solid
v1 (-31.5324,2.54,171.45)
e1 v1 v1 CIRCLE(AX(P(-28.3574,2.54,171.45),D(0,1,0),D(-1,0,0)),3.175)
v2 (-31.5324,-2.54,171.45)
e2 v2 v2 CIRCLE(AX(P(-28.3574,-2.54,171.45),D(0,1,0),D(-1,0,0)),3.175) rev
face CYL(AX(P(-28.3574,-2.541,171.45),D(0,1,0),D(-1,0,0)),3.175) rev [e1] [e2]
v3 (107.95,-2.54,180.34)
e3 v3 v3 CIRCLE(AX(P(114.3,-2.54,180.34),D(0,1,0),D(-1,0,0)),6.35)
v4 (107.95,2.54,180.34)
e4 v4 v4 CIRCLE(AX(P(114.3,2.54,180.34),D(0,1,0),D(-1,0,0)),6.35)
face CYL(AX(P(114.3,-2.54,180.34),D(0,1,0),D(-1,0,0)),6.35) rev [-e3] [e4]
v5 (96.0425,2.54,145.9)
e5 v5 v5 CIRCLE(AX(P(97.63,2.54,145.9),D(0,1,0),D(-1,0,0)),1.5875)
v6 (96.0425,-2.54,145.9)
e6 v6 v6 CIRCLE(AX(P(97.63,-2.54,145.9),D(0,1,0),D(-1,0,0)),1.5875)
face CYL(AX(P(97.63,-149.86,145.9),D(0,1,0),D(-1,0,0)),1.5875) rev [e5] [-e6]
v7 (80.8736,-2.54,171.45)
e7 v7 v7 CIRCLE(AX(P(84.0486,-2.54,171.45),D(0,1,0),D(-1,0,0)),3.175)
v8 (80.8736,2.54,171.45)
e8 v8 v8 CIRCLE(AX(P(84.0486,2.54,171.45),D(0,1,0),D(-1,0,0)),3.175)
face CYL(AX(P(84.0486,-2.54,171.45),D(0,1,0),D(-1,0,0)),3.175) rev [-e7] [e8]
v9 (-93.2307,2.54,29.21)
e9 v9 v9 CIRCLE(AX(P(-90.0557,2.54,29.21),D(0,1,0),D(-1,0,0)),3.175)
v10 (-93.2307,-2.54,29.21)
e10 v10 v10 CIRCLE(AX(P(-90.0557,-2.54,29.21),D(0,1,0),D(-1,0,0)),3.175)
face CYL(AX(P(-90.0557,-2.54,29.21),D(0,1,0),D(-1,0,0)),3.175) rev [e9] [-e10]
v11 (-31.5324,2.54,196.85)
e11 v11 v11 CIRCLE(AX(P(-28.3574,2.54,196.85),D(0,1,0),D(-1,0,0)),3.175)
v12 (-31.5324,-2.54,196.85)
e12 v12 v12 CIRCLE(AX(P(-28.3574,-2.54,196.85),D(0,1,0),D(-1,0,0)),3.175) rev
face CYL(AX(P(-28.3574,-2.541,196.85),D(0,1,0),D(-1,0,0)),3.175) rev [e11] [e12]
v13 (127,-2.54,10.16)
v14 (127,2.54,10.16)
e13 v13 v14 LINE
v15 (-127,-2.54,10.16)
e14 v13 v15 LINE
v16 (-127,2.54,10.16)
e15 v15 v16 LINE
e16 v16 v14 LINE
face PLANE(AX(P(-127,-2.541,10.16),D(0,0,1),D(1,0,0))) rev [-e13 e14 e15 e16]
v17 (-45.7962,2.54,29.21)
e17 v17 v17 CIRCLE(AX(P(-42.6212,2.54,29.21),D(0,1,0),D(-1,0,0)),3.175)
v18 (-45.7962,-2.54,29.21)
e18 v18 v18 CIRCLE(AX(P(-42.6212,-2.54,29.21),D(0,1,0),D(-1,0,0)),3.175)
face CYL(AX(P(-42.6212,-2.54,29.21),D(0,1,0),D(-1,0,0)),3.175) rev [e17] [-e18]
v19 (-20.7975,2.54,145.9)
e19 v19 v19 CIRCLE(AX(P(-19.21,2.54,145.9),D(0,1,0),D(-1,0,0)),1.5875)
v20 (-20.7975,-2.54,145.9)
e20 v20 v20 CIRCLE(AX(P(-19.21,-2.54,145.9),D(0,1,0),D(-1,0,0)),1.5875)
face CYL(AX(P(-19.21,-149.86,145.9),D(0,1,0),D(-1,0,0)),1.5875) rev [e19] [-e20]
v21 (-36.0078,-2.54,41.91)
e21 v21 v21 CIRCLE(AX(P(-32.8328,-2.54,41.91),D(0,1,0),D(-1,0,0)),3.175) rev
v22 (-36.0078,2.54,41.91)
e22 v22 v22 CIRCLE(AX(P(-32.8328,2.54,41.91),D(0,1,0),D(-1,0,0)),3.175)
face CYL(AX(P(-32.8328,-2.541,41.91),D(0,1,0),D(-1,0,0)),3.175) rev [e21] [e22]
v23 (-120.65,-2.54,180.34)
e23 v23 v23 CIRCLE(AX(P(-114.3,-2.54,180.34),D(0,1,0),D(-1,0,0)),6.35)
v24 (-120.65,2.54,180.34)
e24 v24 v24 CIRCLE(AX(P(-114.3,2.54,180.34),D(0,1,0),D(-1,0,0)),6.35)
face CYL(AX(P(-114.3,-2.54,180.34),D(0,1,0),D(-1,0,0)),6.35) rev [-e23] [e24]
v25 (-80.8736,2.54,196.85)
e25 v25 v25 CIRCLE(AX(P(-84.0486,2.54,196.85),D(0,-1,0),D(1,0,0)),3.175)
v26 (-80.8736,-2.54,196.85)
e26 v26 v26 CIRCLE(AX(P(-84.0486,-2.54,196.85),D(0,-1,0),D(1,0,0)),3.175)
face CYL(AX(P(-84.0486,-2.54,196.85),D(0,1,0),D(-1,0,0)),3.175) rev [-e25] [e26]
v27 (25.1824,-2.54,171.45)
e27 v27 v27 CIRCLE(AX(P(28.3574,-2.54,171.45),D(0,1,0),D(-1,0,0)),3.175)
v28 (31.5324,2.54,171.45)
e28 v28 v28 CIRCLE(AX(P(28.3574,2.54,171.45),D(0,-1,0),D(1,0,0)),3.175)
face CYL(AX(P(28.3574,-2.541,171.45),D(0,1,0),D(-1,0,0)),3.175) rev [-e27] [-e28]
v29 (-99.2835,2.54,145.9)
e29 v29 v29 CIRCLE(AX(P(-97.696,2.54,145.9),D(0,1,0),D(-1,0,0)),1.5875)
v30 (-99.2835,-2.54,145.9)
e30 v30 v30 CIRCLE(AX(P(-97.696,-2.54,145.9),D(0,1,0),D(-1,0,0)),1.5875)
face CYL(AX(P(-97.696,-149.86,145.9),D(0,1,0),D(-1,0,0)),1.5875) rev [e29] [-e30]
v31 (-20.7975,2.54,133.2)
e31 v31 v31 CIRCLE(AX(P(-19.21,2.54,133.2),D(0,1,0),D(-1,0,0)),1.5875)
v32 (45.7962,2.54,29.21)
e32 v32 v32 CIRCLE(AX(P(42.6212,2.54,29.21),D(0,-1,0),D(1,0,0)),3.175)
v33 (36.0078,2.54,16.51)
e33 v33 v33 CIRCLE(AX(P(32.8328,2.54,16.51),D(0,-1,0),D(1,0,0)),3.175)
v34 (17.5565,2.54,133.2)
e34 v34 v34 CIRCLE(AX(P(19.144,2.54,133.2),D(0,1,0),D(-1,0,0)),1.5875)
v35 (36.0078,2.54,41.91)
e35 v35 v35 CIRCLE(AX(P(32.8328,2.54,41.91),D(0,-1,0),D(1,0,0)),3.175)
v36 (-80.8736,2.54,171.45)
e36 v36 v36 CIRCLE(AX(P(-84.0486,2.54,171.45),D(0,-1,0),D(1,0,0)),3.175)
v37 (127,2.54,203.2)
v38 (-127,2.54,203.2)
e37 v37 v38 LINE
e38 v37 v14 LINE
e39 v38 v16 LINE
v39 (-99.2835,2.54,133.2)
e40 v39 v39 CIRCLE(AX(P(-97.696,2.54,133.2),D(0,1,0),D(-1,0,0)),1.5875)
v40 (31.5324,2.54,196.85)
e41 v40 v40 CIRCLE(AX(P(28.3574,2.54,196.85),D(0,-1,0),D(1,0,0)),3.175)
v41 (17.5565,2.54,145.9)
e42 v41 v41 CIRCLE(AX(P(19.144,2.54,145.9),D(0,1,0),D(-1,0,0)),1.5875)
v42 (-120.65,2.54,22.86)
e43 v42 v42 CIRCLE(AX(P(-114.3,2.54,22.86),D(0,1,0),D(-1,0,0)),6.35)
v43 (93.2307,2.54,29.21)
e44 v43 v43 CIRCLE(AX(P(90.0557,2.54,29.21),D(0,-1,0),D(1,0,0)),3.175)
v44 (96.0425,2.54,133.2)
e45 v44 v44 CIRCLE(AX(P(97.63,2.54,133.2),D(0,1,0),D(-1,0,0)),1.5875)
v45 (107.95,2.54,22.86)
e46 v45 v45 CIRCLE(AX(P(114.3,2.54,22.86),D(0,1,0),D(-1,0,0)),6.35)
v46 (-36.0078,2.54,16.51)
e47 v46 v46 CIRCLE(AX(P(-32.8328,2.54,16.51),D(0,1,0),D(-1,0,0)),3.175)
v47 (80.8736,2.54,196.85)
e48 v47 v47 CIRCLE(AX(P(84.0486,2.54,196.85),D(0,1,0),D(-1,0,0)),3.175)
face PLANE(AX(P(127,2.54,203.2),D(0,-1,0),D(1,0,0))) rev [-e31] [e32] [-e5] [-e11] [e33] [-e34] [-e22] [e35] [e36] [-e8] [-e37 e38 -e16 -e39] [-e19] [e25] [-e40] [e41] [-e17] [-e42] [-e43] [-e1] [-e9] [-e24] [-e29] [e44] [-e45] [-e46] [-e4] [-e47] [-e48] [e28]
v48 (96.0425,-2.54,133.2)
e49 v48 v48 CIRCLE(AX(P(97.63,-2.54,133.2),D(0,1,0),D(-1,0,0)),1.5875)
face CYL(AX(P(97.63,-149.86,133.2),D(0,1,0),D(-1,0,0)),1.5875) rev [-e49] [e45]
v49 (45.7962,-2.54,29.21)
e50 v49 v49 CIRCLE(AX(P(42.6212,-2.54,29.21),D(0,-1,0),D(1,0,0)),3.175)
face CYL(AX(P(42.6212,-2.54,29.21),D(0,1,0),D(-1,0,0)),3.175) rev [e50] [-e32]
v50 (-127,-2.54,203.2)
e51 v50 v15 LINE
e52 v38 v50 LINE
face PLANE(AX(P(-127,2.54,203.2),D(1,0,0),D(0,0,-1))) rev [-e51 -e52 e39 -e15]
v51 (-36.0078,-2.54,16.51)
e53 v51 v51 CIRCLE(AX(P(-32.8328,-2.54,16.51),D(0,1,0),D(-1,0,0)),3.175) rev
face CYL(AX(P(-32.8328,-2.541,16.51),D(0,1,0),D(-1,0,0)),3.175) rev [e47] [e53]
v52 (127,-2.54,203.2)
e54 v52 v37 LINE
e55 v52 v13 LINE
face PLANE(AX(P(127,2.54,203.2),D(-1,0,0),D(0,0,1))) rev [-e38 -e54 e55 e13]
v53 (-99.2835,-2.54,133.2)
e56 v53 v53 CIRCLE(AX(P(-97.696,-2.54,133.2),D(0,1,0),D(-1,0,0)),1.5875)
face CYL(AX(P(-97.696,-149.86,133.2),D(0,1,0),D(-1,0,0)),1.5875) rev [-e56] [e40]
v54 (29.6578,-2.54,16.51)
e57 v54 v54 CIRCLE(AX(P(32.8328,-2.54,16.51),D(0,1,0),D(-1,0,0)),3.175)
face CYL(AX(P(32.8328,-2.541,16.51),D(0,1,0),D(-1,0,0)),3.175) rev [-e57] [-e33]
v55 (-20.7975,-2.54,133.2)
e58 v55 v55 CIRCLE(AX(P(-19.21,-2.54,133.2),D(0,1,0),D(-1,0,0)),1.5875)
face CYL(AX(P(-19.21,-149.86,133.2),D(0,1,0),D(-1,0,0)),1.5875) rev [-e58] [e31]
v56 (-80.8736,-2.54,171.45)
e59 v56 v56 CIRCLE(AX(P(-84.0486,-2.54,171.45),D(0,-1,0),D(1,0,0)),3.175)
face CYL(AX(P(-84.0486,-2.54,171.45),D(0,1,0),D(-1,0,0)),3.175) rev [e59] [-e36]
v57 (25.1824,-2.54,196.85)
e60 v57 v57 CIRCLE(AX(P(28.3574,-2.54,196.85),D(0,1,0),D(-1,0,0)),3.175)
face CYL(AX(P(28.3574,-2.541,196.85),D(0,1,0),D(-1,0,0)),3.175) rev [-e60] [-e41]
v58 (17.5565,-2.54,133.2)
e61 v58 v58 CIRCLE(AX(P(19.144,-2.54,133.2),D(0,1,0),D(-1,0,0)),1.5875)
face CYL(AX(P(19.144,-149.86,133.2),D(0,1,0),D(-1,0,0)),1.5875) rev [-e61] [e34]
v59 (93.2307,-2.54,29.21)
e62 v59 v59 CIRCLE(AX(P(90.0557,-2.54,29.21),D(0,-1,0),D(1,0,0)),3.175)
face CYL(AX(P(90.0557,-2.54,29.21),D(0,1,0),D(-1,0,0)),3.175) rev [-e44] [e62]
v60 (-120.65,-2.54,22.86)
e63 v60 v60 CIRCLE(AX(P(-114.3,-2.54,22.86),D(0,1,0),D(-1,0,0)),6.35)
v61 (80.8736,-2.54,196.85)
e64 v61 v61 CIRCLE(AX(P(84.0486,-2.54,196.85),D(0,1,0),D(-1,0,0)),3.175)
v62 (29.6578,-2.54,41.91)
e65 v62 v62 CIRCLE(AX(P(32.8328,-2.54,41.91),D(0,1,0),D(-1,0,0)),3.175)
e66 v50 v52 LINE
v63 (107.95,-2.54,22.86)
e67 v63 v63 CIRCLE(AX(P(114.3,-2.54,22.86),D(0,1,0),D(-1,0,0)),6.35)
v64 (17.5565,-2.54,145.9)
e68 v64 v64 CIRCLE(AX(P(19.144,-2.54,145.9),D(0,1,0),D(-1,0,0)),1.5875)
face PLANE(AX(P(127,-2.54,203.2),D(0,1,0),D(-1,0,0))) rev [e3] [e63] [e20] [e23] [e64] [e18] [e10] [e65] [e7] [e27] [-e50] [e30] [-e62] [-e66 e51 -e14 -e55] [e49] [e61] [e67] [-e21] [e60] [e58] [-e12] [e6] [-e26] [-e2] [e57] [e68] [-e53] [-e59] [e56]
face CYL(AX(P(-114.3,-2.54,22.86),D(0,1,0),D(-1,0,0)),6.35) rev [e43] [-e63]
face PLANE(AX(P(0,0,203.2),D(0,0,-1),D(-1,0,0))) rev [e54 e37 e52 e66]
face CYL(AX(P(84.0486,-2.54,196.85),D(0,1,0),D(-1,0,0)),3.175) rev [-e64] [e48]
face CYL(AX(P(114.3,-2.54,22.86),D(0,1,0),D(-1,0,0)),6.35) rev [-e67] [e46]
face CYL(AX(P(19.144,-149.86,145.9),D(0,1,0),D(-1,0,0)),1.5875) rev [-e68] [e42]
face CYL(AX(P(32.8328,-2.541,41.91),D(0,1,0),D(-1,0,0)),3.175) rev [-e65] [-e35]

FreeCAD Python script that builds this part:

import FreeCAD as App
import Part
import Sketcher
from FreeCAD import Vector
Q = App.Units.Quantity


def add_polygon(sketch, points):
    """Adds a closed chain of lines whose ends are joined by coincident constraints."""
    first, n = sketch.GeometryCount, len(points)
    for a, b in zip(points, points[1:] + points[:1]):
        sketch.addGeometry(Part.LineSegment(App.Vector(*a, 0), App.Vector(*b, 0)), False)
    for i in range(n):
        sketch.addConstraint(Sketcher.Constraint("Coincident", first + i, 2, first + (i + 1) % n, 1))

doc = App.newDocument("Part")
body = doc.addObject("PartDesign::Body", "Body")

sketch1 = body.newObject("Sketcher::SketchObject", "Sketch")
sketch1.AttachmentSupport = (doc.getObject("XY_Plane"), [""])
sketch1.MapMode = "FlatFace"
add_polygon(sketch1, [(-127, 2.54), (-127, -2.54), (127, -2.54), (127, 2.54)])
sketch1.addConstraint([
    Sketcher.Constraint("Vertical", 0),
    Sketcher.Constraint("Horizontal", 1),
    Sketcher.Constraint("Vertical", 2),
    Sketcher.Constraint("Horizontal", 3),
    Sketcher.Constraint("Symmetric", 0, 2, 2, 2, -1, 1),
    Sketcher.Constraint("DistanceX", 1, 1, 1, 2, Q("10 in")),
    Sketcher.Constraint("DistanceY", 0, 2, 0, 1, Q("0.2 in")),
])
pad1 = body.newObject("PartDesign::Pad", "Pad")
pad1.Profile = sketch1
pad1.Length = Q("8 in")

sketch2 = body.newObject("Sketcher::SketchObject", "Sketch001")
sketch2.AttachmentSupport = (doc.getObject("XZ_Plane"), [""])
sketch2.MapMode = "FlatFace"
sketch2.AttachmentOffset = App.Placement(Vector(0, 0, -0.1 * 25.4), App.Rotation())
sketch2.addGeometry([
    Part.Circle(Vector(-114.3, 22.86, 0), Vector(0, 0, 1), 6.35),
    Part.Circle(Vector(-114.3, 180.34, 0), Vector(0, 0, 1), 6.35),
    Part.Circle(Vector(114.3, 22.86, 0), Vector(0, 0, 1), 6.35),
    Part.Circle(Vector(114.3, 180.34, 0), Vector(0, 0, 1), 6.35),
], False)
sketch2.addConstraint([
    Sketcher.Constraint("Equal", 0, 1),
    Sketcher.Constraint("Equal", 1, 2),
    Sketcher.Constraint("Equal", 2, 3),
    Sketcher.Constraint("Symmetric", 0, 3, 2, 3, -2),
    Sketcher.Constraint("Symmetric", 1, 3, 3, 3, -2),
    Sketcher.Constraint("Vertical", 0, 3, 1, 3),
    Sketcher.Constraint("Diameter", 0, Q("0.5 in")),
    Sketcher.Constraint("DistanceX", 0, 3, 2, 3, Q("9 in")),
    Sketcher.Constraint("DistanceY", -1, 1, 0, 3, Q("0.9 in")),
    Sketcher.Constraint("DistanceY", -1, 1, 1, 3, Q("7.1 in")),
])
pocket1 = body.newObject("PartDesign::Pocket", "Pocket")
pocket1.Profile = sketch2
pocket1.Type = "ThroughAll"
pocket1.Reversed = True

sketch3 = body.newObject("Sketcher::SketchObject", "Sketch002")
sketch3.AttachmentSupport = (doc.getObject("XZ_Plane"), [""])
sketch3.MapMode = "FlatFace"
sketch3.AttachmentOffset = App.Placement(Vector(0, 0, -0.1 * 25.4), App.Rotation())
sketch3.addGeometry([
    Part.Circle(Vector(97.63, 133.2, 0), Vector(0, 0, 1), 1.5875),
    Part.Circle(Vector(97.63, 145.9, 0), Vector(0, 0, 1), 1.5875),
    Part.Circle(Vector(-19.21, 133.2, 0), Vector(0, 0, 1), 1.5875),
    Part.Circle(Vector(-19.21, 145.9, 0), Vector(0, 0, 1), 1.5875),
    Part.Circle(Vector(-97.696, 133.2, 0), Vector(0, 0, 1), 1.5875),
    Part.Circle(Vector(-97.696, 145.9, 0), Vector(0, 0, 1), 1.5875),
    Part.Circle(Vector(19.144, 133.2, 0), Vector(0, 0, 1), 1.5875),
    Part.Circle(Vector(19.144, 145.9, 0), Vector(0, 0, 1), 1.5875),
], False)
sketch3.addConstraint([
    Sketcher.Constraint("Equal", 0, 1),
    Sketcher.Constraint("Equal", 1, 2),
    Sketcher.Constraint("Equal", 2, 3),
    Sketcher.Constraint("Equal", 3, 4),
    Sketcher.Constraint("Equal", 4, 5),
    Sketcher.Constraint("Equal", 5, 6),
    Sketcher.Constraint("Equal", 6, 7),
    Sketcher.Constraint("Horizontal", 0, 3, 2, 3),
    Sketcher.Constraint("Horizontal", 1, 3, 3, 3),
    Sketcher.Constraint("Horizontal", 2, 3, 4, 3),
    Sketcher.Constraint("Horizontal", 3, 3, 5, 3),
    Sketcher.Constraint("Horizontal", 4, 3, 6, 3),
    Sketcher.Constraint("Horizontal", 5, 3, 7, 3),
    Sketcher.Constraint("Vertical", 0, 3, 1, 3),
    Sketcher.Constraint("Vertical", 2, 3, 3, 3),
    Sketcher.Constraint("Vertical", 4, 3, 5, 3),
    Sketcher.Constraint("Vertical", 6, 3, 7, 3),
    Sketcher.Constraint("Diameter", 0, Q("0.125 in")),
    Sketcher.Constraint("DistanceY", 0, 3, 1, 3, Q("0.5 in")),
    Sketcher.Constraint("DistanceX", 2, 3, 0, 3, Q("4.6 in")),
    Sketcher.Constraint("DistanceX", 4, 3, 6, 3, Q("4.6 in")),
    Sketcher.Constraint("DistanceX", 4, 3, 2, 3, Q("3.09 in")),
    Sketcher.Constraint("DistanceX", -1, 1, 0, 3, 97.63),
    Sketcher.Constraint("DistanceY", -1, 1, 0, 3, 133.2),
])
pocket2 = body.newObject("PartDesign::Pocket", "Pocket001")
pocket2.Profile = sketch3
pocket2.Length = Q("6 in")
pocket2.Reversed = True

sketch4 = body.newObject("Sketcher::SketchObject", "Sketch003")
sketch4.AttachmentSupport = (doc.getObject("XZ_Plane"), [""])
sketch4.MapMode = "FlatFace"
sketch4.AttachmentOffset = App.Placement(Vector(0, 0, -0.1 * 25.4), App.Rotation())
sketch4.addGeometry([
    Part.Circle(Vector(-90.0557, 29.21, 0), Vector(0, 0, 1), 3.175),
    Part.Circle(Vector(-42.6212, 29.21, 0), Vector(0, 0, 1), 3.175),
], False)
sketch4.addConstraint([
    Sketcher.Constraint("Equal", 0, 1),
    Sketcher.Constraint("Horizontal", 0, 3, 1, 3),
    Sketcher.Constraint("Diameter", 0, Q("0.25 in")),
    Sketcher.Constraint("DistanceY", -1, 1, 0, 3, Q("1.15 in")),
    Sketcher.Constraint("DistanceX", 1, 3, -1, 1, Q("1.678 in")),
    Sketcher.Constraint("DistanceX", 0, 3, -1, 1, Q("3.5455 in")),
])
pocket3 = body.newObject("PartDesign::Pocket", "Pocket002")
pocket3.Profile = sketch4
pocket3.Type = "ThroughAll"
pocket3.Reversed = True

sketch5 = body.newObject("Sketcher::SketchObject", "Sketch004")
sketch5.AttachmentSupport = (doc.getObject("XZ_Plane"), [""])
sketch5.MapMode = "FlatFace"
sketch5.AttachmentOffset = App.Placement(Vector(0, 0, -0.1 * 25.4), App.Rotation())
sketch5.addGeometry([
    Part.Circle(Vector(-32.8328, 16.51, 0), Vector(0, 0, 1), 3.175),
    Part.Circle(Vector(-32.8328, 41.91, 0), Vector(0, 0, 1), 3.175),
], False)
sketch5.addConstraint([
    Sketcher.Constraint("Equal", 0, 1),
    Sketcher.Constraint("Vertical", 0, 3, 1, 3),
    Sketcher.Constraint("Diameter", 0, Q("0.25 in")),
    Sketcher.Constraint("DistanceY", 0, 3, 1, 3, Q("1 in")),
    Sketcher.Constraint("DistanceY", -1, 1, 0, 3, Q("0.65 in")),
    Sketcher.Constraint("DistanceX", 0, 3, -1, 1, 32.8328),
])
pocket4 = body.newObject("PartDesign::Pocket", "Pocket003")
pocket4.Profile = sketch5
pocket4.Length = Q("0.2 in")
pocket4.Reversed = True
doc.recompute()

mirrored = body.newObject("PartDesign::Mirrored", "Mirrored")
mirrored.Originals = [pocket3, pocket4]
mirrored.MirrorPlane = (doc.getObject("YZ_Plane"), [""])
body.Tip = mirrored

sketch6 = body.newObject("Sketcher::SketchObject", "Sketch005")
sketch6.AttachmentSupport = (doc.getObject("XZ_Plane"), [""])
sketch6.MapMode = "FlatFace"
sketch6.AttachmentOffset = App.Placement(Vector(0, 0, -0.1 * 25.4), App.Rotation())
add_polygon(sketch6, [(-127, 0), (-127, 10.16), (127, 10.16), (127, 0)])
sketch6.addConstraint([
    Sketcher.Constraint("Vertical", 0),
    Sketcher.Constraint("Horizontal", 1),
    Sketcher.Constraint("Vertical", 2),
    Sketcher.Constraint("Horizontal", 3),
    Sketcher.Constraint("Symmetric", 2, 2, 3, 2, -1, 1),
    Sketcher.Constraint("DistanceX", 1, 1, 1, 2, Q("10 in")),
    Sketcher.Constraint("DistanceY", 0, 1, 0, 2, Q("0.4 in")),
])
pocket5 = body.newObject("PartDesign::Pocket", "Pocket004")
pocket5.Profile = sketch6
pocket5.Type = "UpToFirst"
pocket5.Reversed = True

sketch7 = body.newObject("Sketcher::SketchObject", "Sketch006")
sketch7.AttachmentSupport = (doc.getObject("XZ_Plane"), [""])
sketch7.MapMode = "FlatFace"
sketch7.AttachmentOffset = App.Placement(Vector(0, 0, -0.1 * 25.4), App.Rotation())
sketch7.addGeometry([
    Part.Circle(Vector(84.0486, 196.85, 0), Vector(0, 0, 1), 3.175),
    Part.Circle(Vector(84.0486, 171.45, 0), Vector(0, 0, 1), 3.175),
], False)
sketch7.addConstraint([
    Sketcher.Constraint("Equal", 0, 1),
    Sketcher.Constraint("Vertical", 0, 3, 1, 3),
    Sketcher.Constraint("Diameter", 0, Q("0.25 in")),
    Sketcher.Constraint("DistanceY", 1, 3, 0, 3, Q("1 in")),
    Sketcher.Constraint("DistanceY", -1, 1, 0, 3, Q("7.75 in")),
    Sketcher.Constraint("DistanceX", -1, 1, 0, 3, Q("3.309 in")),
])
pocket6 = body.newObject("PartDesign::Pocket", "Pocket005")
pocket6.Profile = sketch7
pocket6.Type = "ThroughAll"
pocket6.Reversed = True
doc.recompute()

mirrored2 = body.newObject("PartDesign::Mirrored", "Mirrored001")
mirrored2.Originals = [pocket6]
mirrored2.MirrorPlane = (doc.getObject("YZ_Plane"), [""])
body.Tip = mirrored2

sketch8 = body.newObject("Sketcher::SketchObject", "Sketch007")
sketch8.AttachmentSupport = (doc.getObject("XZ_Plane"), [""])
sketch8.MapMode = "FlatFace"
sketch8.AttachmentOffset = App.Placement(Vector(0, 0, -0.1 * 25.4), App.Rotation())
sketch8.addGeometry([
    Part.Circle(Vector(-28.3574, 171.45, 0), Vector(0, 0, 1), 3.175),
    Part.Circle(Vector(-28.3574, 196.85, 0), Vector(0, 0, 1), 3.175),
], False)
sketch8.addConstraint([
    Sketcher.Constraint("Equal", 0, 1),
    Sketcher.Constraint("Vertical", 0, 3, 1, 3),
    Sketcher.Constraint("Diameter", 0, Q("0.25 in")),
    Sketcher.Constraint("DistanceY", 0, 3, 1, 3, Q("1 in")),
    Sketcher.Constraint("DistanceY", -1, 1, 0, 3, Q("6.75 in")),
    Sketcher.Constraint("DistanceX", 0, 3, -1, 1, 28.3574),
])
pocket7 = body.newObject("PartDesign::Pocket", "Pocket006")
pocket7.Profile = sketch8
pocket7.Length = Q("0.2 in")
pocket7.Reversed = True
doc.recompute()

mirrored3 = body.newObject("PartDesign::Mirrored", "Mirrored002")
mirrored3.Originals = [pocket7]
mirrored3.MirrorPlane = (doc.getObject("YZ_Plane"), [""])
body.Tip = mirrored3

doc.recompute()
